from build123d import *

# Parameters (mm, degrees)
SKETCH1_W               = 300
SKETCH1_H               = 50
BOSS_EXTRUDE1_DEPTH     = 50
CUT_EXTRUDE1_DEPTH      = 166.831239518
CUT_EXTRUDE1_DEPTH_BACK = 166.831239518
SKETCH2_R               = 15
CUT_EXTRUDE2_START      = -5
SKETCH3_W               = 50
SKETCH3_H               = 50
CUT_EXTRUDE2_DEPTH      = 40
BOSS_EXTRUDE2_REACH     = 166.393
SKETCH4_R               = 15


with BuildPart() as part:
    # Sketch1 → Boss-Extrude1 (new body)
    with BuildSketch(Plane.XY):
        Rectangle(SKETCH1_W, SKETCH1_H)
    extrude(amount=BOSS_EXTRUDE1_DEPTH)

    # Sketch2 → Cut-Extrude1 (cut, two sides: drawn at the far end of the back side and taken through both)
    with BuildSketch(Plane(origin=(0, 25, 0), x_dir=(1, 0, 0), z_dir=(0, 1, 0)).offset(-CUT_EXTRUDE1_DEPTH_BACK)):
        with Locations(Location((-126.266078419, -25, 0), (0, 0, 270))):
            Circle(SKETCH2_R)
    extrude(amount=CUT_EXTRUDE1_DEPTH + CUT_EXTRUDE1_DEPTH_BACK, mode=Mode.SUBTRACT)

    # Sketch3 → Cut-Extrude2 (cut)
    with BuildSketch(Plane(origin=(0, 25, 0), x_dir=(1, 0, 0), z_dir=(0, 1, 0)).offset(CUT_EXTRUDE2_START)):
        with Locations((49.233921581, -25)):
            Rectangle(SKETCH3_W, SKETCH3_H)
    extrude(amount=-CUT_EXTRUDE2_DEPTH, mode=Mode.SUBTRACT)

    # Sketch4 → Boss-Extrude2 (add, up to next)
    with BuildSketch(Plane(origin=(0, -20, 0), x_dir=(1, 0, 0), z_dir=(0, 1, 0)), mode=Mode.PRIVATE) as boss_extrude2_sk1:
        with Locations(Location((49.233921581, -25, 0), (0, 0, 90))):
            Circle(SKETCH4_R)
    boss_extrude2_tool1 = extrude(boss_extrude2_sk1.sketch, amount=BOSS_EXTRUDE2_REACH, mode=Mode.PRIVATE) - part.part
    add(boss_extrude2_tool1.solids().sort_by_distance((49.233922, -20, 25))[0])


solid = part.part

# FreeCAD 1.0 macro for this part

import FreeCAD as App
import Part
import Sketcher

V = App.Vector
Q = App.Units.Quantity


def add_polygon(sketch, points):
    """Adds a closed chain of lines whose ends are joined by coincident constraints."""
    first, n = sketch.GeometryCount, len(points)
    for a, b in zip(points, points[1:] + points[:1]):
        sketch.addGeometry(Part.LineSegment(App.Vector(*a, 0), App.Vector(*b, 0)), False)
    for i in range(n):
        sketch.addConstraint(Sketcher.Constraint("Coincident", first + i, 2, first + (i + 1) % n, 1))

doc = App.newDocument("Part")
body = doc.addObject("PartDesign::Body", "Body")

# Sketch on XY plane
sketch1 = body.newObject("Sketcher::SketchObject", "Sketch")
sketch1.AttachmentSupport = (doc.getObject("XY_Plane"), [""])
sketch1.MapMode = "FlatFace"
add_polygon(sketch1, [(-150, 25), (-150, -25), (150, -25), (150, 25)])  # lines 0-3
sketch1.addConstraint([
    Sketcher.Constraint("Vertical", 0),
    Sketcher.Constraint("Horizontal", 1),
    Sketcher.Constraint("Vertical", 2),
    Sketcher.Constraint("Horizontal", 3),
    Sketcher.Constraint("Symmetric", 0, 2, 2, 2, -1, 1),
    Sketcher.Constraint("DistanceX", 1, 1, 1, 2, Q("300 mm")),
    Sketcher.Constraint("DistanceY", 0, 2, 0, 1, Q("50 mm")),
])
pad1 = body.newObject("PartDesign::Pad", "Pad")
pad1.Profile = sketch1
pad1.Length = 50

# Sketch on XZ plane
sketch2 = body.newObject("Sketcher::SketchObject", "Sketch001")
sketch2.AttachmentSupport = (doc.getObject("XZ_Plane"), [""])
sketch2.MapMode = "FlatFace"
sketch2.AttachmentOffset = App.Placement(V(0, 0, -25), App.Rotation())
sketch2.addGeometry(Part.Circle(V(-126.266078, 25, 0), V(0, 0, 1), 15), False)
sketch2.addConstraint([
    Sketcher.Constraint("Diameter", 0, Q("30 mm")),
    Sketcher.Constraint("DistanceY", -1, 1, 0, 3, Q("25 mm")),
    Sketcher.Constraint("DistanceX", 0, 3, -1, 1, Q("126.266078 mm")),
])
pocket1 = body.newObject("PartDesign::Pocket", "Pocket")
pocket1.Profile = sketch2
pocket1.Type = "ThroughAll"
pocket1.Midplane = True

# Sketch on XZ plane
sketch3 = body.newObject("Sketcher::SketchObject", "Sketch002")
sketch3.AttachmentSupport = (doc.getObject("XZ_Plane"), [""])
sketch3.MapMode = "FlatFace"
sketch3.AttachmentOffset = App.Placement(V(0, 0, -20), App.Rotation())
add_polygon(sketch3, [(24.233922, 0), (24.233922, 50), (74.233922, 50), (74.233922, 0)])  # lines 0-3
sketch3.addConstraint([
    Sketcher.Constraint("Vertical", 0),
    Sketcher.Constraint("Horizontal", 1),
    Sketcher.Constraint("Vertical", 2),
    Sketcher.Constraint("Horizontal", 3),
    Sketcher.Constraint("PointOnObject", 2, 2, -1),
    Sketcher.Constraint("Equal", 3, 0),
    Sketcher.Constraint("DistanceX", 1, 1, 1, 2, Q("50 mm")),
    Sketcher.Constraint("DistanceX", -1, 1, 0, 2, Q("24.233922 mm")),
])
pocket2 = body.newObject("PartDesign::Pocket", "Pocket001")
pocket2.Profile = sketch3
pocket2.Length = 40
pocket2.Reversed = True

# Sketch on XZ plane
sketch4 = body.newObject("Sketcher::SketchObject", "Sketch003")
sketch4.AttachmentSupport = (doc.getObject("XZ_Plane"), [""])
sketch4.MapMode = "FlatFace"
sketch4.AttachmentOffset = App.Placement(V(0, 0, 20), App.Rotation())
sketch4.addGeometry(Part.Circle(V(49.233922, 25, 0), V(0, 0, 1), 15), False)
sketch4.addConstraint([
    Sketcher.Constraint("Diameter", 0, Q("30 mm")),
    Sketcher.Constraint("DistanceY", -1, 1, 0, 3, Q("25 mm")),
    Sketcher.Constraint("DistanceX", -1, 1, 0, 3, Q("49.233922 mm")),
])
pad2 = body.newObject("PartDesign::Pad", "Pad001")
pad2.Profile = sketch4
pad2.Type = "UpToFirst"
pad2.Reversed = True

doc.recompute()
